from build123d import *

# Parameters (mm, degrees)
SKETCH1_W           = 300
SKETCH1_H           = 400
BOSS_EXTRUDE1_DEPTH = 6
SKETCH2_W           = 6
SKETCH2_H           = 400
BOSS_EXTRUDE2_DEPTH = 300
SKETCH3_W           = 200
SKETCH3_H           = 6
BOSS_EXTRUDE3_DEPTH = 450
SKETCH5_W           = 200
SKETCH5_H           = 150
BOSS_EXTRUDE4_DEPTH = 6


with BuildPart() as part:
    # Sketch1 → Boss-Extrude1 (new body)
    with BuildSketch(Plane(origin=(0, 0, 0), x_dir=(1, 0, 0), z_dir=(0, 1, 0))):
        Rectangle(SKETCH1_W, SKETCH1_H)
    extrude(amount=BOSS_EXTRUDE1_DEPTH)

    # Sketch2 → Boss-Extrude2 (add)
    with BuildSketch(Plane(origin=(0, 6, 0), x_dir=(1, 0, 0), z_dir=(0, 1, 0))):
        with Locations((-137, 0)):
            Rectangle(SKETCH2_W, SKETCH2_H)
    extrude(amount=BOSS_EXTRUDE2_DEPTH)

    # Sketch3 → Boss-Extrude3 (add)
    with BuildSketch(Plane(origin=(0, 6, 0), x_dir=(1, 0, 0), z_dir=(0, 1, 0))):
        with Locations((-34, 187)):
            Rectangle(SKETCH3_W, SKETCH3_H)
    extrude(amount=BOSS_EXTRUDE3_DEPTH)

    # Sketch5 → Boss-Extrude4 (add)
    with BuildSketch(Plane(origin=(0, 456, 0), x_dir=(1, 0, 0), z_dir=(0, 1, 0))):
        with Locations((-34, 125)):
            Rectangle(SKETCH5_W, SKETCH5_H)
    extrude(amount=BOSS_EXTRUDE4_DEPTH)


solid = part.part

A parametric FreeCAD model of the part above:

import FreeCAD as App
import Part
import Sketcher

V = App.Vector

doc = App.newDocument("Part")
params = doc.addObject("Spreadsheet::Sheet", "Params")
for row, (alias, value) in enumerate([
    ("sketch1_width", "300 mm"),
    ("sketch1_height", "400 mm"),
    ("pad1_length", "6 mm"),
    ("sketch2_width", "6 mm"),
    ("sketch2_height", "400 mm"),
    ("pad2_length", "300 mm"),
    ("sketch3_width", "200 mm"),
    ("sketch3_height", "6 mm"),
    ("pad3_length", "450 mm"),
    ("sketch4_width", "200 mm"),
    ("sketch4_height", "150 mm"),
    ("pad4_length", "6 mm"),
], start=1):
    params.set(f"A{row}", alias)
    params.set(f"B{row}", "=" + value)
    params.setAlias(f"B{row}", alias)

body = doc.addObject("PartDesign::Body", "Body")

# Sketch on XZ plane
sketch1 = doc.addObject("Sketcher::SketchObject", "Sketch")
body.addObject(sketch1)
sketch1.AttachmentSupport = (doc.XZ_Plane, [""])
sketch1.MapMode = "FlatFace"
sketch1.addGeometry(Part.LineSegment(V(-150, -200, 0), V(-150, 200, 0)), False)
sketch1.addGeometry(Part.LineSegment(V(-150, 200, 0), V(150, 200, 0)), False)
sketch1.addGeometry(Part.LineSegment(V(150, 200, 0), V(150, -200, 0)), False)
sketch1.addGeometry(Part.LineSegment(V(150, -200, 0), V(-150, -200, 0)), False)
sketch1.addConstraint(Sketcher.Constraint("Coincident", 0, 2, 1, 1))
sketch1.addConstraint(Sketcher.Constraint("Coincident", 1, 2, 2, 1))
sketch1.addConstraint(Sketcher.Constraint("Coincident", 2, 2, 3, 1))
sketch1.addConstraint(Sketcher.Constraint("Coincident", 3, 2, 0, 1))
sketch1.addConstraint(Sketcher.Constraint("Vertical", 0))
sketch1.addConstraint(Sketcher.Constraint("Horizontal", 1))
sketch1.addConstraint(Sketcher.Constraint("Vertical", 2))
sketch1.addConstraint(Sketcher.Constraint("Horizontal", 3))
sketch1.addConstraint(Sketcher.Constraint("Symmetric", 0, 2, 2, 2, -1, 1))
sketch1.addConstraint(Sketcher.Constraint("DistanceX", 1, 1, 1, 2, 300.0))
sketch1.addConstraint(Sketcher.Constraint("DistanceY", 0, 1, 0, 2, 400.0))
sketch1.setExpression("Constraints[9]", "Params.sketch1_width")
sketch1.setExpression("Constraints[10]", "Params.sketch1_height")
pad1 = doc.addObject("PartDesign::Pad", "Pad")
body.addObject(pad1)
pad1.Profile = sketch1
pad1.setExpression("Length", "Params.pad1_length")
pad1.Reversed = True

# Sketch on XZ plane
sketch2 = doc.addObject("Sketcher::SketchObject", "Sketch001")
body.addObject(sketch2)
sketch2.AttachmentSupport = (doc.XZ_Plane, [""])
sketch2.MapMode = "FlatFace"
sketch2.AttachmentOffset = App.Placement(V(0, 0, -6), App.Rotation())
sketch2.addGeometry(Part.LineSegment(V(-140, -200, 0), V(-140, 200, 0)), False)
sketch2.addGeometry(Part.LineSegment(V(-140, 200, 0), V(-134, 200, 0)), False)
sketch2.addGeometry(Part.LineSegment(V(-134, 200, 0), V(-134, -200, 0)), False)
sketch2.addGeometry(Part.LineSegment(V(-134, -200, 0), V(-140, -200, 0)), False)
sketch2.addConstraint(Sketcher.Constraint("Coincident", 0, 2, 1, 1))
sketch2.addConstraint(Sketcher.Constraint("Coincident", 1, 2, 2, 1))
sketch2.addConstraint(Sketcher.Constraint("Coincident", 2, 2, 3, 1))
sketch2.addConstraint(Sketcher.Constraint("Coincident", 3, 2, 0, 1))
sketch2.addConstraint(Sketcher.Constraint("Vertical", 0))
sketch2.addConstraint(Sketcher.Constraint("Horizontal", 1))
sketch2.addConstraint(Sketcher.Constraint("Vertical", 2))
sketch2.addConstraint(Sketcher.Constraint("Horizontal", 3))
sketch2.addConstraint(Sketcher.Constraint("DistanceX", 1, 1, 1, 2, 6.0))
sketch2.addConstraint(Sketcher.Constraint("DistanceY", 0, 1, 0, 2, 400.0))
sketch2.addConstraint(Sketcher.Constraint("DistanceX", 0, 2, -1, 1, 140.0))
sketch2.addConstraint(Sketcher.Constraint("DistanceY", -1, 1, 0, 2, 200.0))
sketch2.setExpression("Constraints[8]", "Params.sketch2_width")
sketch2.setExpression("Constraints[9]", "Params.sketch2_height")
pad2 = doc.addObject("PartDesign::Pad", "Pad001")
body.addObject(pad2)
pad2.Profile = sketch2
pad2.setExpression("Length", "Params.pad2_length")
pad2.Reversed = True

# Sketch on XZ plane
sketch3 = doc.addObject("Sketcher::SketchObject", "Sketch002")
body.addObject(sketch3)
sketch3.AttachmentSupport = (doc.XZ_Plane, [""])
sketch3.MapMode = "FlatFace"
sketch3.AttachmentOffset = App.Placement(V(0, 0, -6), App.Rotation())
sketch3.addGeometry(Part.LineSegment(V(-134, -190, 0), V(-134, -184, 0)), False)
sketch3.addGeometry(Part.LineSegment(V(-134, -184, 0), V(66, -184, 0)), False)
sketch3.addGeometry(Part.LineSegment(V(66, -184, 0), V(66, -190, 0)), False)
sketch3.addGeometry(Part.LineSegment(V(66, -190, 0), V(-134, -190, 0)), False)
sketch3.addConstraint(Sketcher.Constraint("Coincident", 0, 2, 1, 1))
sketch3.addConstraint(Sketcher.Constraint("Coincident", 1, 2, 2, 1))
sketch3.addConstraint(Sketcher.Constraint("Coincident", 2, 2, 3, 1))
sketch3.addConstraint(Sketcher.Constraint("Coincident", 3, 2, 0, 1))
sketch3.addConstraint(Sketcher.Constraint("Vertical", 0))
sketch3.addConstraint(Sketcher.Constraint("Horizontal", 1))
sketch3.addConstraint(Sketcher.Constraint("Vertical", 2))
sketch3.addConstraint(Sketcher.Constraint("Horizontal", 3))
sketch3.addConstraint(Sketcher.Constraint("DistanceX", 1, 1, 1, 2, 200.0))
sketch3.addConstraint(Sketcher.Constraint("DistanceY", 0, 1, 0, 2, 6.0))
sketch3.addConstraint(Sketcher.Constraint("DistanceX", 0, 2, -1, 1, 134.0))
sketch3.addConstraint(Sketcher.Constraint("DistanceY", 0, 2, -1, 1, 184.0))
sketch3.setExpression("Constraints[8]", "Params.sketch3_width")
sketch3.setExpression("Constraints[9]", "Params.sketch3_height")
pad3 = doc.addObject("PartDesign::Pad", "Pad002")
body.addObject(pad3)
pad3.Profile = sketch3
pad3.setExpression("Length", "Params.pad3_length")
pad3.Reversed = True

# Sketch on XZ plane
sketch4 = doc.addObject("Sketcher::SketchObject", "Sketch003")
body.addObject(sketch4)
sketch4.AttachmentSupport = (doc.XZ_Plane, [""])
sketch4.MapMode = "FlatFace"
sketch4.AttachmentOffset = App.Placement(V(0, 0, -456), App.Rotation())
sketch4.addGeometry(Part.LineSegment(V(-134, -200, 0), V(-134, -50, 0)), False)
sketch4.addGeometry(Part.LineSegment(V(-134, -50, 0), V(66, -50, 0)), False)
sketch4.addGeometry(Part.LineSegment(V(66, -50, 0), V(66, -200, 0)), False)
sketch4.addGeometry(Part.LineSegment(V(66, -200, 0), V(-134, -200, 0)), False)
sketch4.addConstraint(Sketcher.Constraint("Coincident", 0, 2, 1, 1))
sketch4.addConstraint(Sketcher.Constraint("Coincident", 1, 2, 2, 1))
sketch4.addConstraint(Sketcher.Constraint("Coincident", 2, 2, 3, 1))
sketch4.addConstraint(Sketcher.Constraint("Coincident", 3, 2, 0, 1))
sketch4.addConstraint(Sketcher.Constraint("Vertical", 0))
sketch4.addConstraint(Sketcher.Constraint("Horizontal", 1))
sketch4.addConstraint(Sketcher.Constraint("Vertical", 2))
sketch4.addConstraint(Sketcher.Constraint("Horizontal", 3))
sketch4.addConstraint(Sketcher.Constraint("DistanceX", 1, 1, 1, 2, 200.0))
sketch4.addConstraint(Sketcher.Constraint("DistanceY", 0, 1, 0, 2, 150.0))
sketch4.addConstraint(Sketcher.Constraint("DistanceX", 0, 2, -1, 1, 134.0))
sketch4.addConstraint(Sketcher.Constraint("DistanceY", 0, 2, -1, 1, 50.0))
sketch4.setExpression("Constraints[8]", "Params.sketch4_width")
sketch4.setExpression("Constraints[9]", "Params.sketch4_height")
pad4 = doc.addObject("PartDesign::Pad", "Pad003")
body.addObject(pad4)
pad4.Profile = sketch4
pad4.setExpression("Length", "Params.pad4_length")
pad4.Reversed = True

doc.recompute()
